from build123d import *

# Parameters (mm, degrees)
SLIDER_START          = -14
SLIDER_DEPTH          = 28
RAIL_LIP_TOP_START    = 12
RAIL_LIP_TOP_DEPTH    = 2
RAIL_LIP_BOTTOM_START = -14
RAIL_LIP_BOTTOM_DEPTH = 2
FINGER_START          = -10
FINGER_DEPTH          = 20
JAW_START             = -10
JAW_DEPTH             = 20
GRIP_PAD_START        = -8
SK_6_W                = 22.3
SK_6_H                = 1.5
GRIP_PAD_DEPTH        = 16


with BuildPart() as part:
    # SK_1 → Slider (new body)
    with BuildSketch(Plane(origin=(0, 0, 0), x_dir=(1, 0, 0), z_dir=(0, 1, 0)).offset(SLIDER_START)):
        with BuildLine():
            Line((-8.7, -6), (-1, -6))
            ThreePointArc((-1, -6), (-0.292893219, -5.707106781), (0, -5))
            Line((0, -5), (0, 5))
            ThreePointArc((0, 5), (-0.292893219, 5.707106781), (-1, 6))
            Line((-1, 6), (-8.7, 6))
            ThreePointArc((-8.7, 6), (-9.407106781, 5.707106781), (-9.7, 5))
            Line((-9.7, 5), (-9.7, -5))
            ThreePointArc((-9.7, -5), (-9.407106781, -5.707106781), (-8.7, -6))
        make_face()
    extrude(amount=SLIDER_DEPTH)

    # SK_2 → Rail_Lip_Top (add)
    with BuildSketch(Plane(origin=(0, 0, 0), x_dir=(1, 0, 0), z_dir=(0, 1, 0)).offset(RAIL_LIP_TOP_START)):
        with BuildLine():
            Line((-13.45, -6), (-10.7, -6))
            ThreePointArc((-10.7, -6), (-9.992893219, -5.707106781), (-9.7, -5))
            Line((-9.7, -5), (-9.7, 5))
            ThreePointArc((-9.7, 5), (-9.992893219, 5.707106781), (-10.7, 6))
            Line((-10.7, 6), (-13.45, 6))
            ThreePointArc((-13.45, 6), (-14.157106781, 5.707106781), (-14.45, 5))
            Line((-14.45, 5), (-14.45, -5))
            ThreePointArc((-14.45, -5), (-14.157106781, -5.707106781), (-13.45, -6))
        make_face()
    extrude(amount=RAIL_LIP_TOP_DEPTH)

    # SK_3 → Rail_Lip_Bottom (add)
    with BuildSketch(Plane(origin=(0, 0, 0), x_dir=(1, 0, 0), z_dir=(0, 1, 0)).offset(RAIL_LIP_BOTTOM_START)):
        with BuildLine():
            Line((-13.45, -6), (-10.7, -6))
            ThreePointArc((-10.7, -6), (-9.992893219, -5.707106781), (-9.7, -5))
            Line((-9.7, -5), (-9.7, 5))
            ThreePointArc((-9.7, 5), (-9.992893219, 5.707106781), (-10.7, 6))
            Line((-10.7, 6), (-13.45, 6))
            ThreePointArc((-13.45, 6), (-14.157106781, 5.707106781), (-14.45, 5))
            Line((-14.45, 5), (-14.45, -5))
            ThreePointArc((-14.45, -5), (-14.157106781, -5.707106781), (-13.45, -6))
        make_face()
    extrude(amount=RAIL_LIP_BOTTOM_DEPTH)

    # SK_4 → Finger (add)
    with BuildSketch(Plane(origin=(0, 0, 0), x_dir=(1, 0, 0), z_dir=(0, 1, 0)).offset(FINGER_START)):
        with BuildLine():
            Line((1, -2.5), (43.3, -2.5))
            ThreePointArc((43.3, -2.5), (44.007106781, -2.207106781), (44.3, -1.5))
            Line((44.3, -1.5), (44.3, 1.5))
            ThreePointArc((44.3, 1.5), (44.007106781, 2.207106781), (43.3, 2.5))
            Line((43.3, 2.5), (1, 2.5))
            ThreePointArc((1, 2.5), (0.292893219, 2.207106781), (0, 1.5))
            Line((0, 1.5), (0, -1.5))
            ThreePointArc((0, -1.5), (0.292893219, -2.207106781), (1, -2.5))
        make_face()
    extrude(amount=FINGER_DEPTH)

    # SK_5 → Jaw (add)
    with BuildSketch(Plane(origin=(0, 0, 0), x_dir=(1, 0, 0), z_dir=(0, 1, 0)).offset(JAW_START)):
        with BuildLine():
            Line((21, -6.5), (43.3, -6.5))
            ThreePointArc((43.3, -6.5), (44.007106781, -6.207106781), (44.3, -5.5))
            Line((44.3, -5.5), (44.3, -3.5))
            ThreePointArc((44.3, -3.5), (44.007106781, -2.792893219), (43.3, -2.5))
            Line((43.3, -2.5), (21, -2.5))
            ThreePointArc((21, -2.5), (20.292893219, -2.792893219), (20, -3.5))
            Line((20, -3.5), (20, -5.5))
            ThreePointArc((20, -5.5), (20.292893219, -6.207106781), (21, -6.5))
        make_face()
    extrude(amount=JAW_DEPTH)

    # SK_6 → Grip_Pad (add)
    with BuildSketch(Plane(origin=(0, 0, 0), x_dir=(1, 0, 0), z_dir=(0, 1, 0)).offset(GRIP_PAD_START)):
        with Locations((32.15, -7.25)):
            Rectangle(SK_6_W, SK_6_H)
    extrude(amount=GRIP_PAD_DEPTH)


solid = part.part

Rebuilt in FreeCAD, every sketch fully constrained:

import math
import FreeCAD as App
import Part
import Sketcher


def add_polygon(sketch, points):
    """Adds a closed chain of lines whose ends are joined by coincident constraints."""
    first, n = sketch.GeometryCount, len(points)
    for a, b in zip(points, points[1:] + points[:1]):
        sketch.addGeometry(Part.LineSegment(App.Vector(*a, 0), App.Vector(*b, 0)), False)
    for i in range(n):
        sketch.addConstraint(Sketcher.Constraint("Coincident", first + i, 2, first + (i + 1) % n, 1))

doc = App.newDocument("Part")
body = doc.addObject("PartDesign::Body", "Body")

sketch1 = body.newObject("Sketcher::SketchObject", "Sketch")
sketch1.AttachmentSupport = (doc.getObject("XZ_Plane"), [""])
sketch1.MapMode = "FlatFace"
sketch1.AttachmentOffset = App.Placement(App.Vector(0, 0, 14), App.Rotation())
sketch1.addGeometry(Part.LineSegment(App.Vector(-8.7, 6, 0), App.Vector(-1, 6, 0)), False)
sketch1.addGeometry(Part.ArcOfCircle(Part.Circle(App.Vector(-1, 5, 0), App.Vector(0, 0, 1), 1), math.radians(0), math.radians(90)), False)
sketch1.addGeometry(Part.LineSegment(App.Vector(0, 5, 0), App.Vector(0, -5, 0)), False)
sketch1.addGeometry(Part.ArcOfCircle(Part.Circle(App.Vector(-1, -5, 0), App.Vector(0, 0, 1), 1), math.radians(-90), math.radians(0)), False)
sketch1.addGeometry(Part.LineSegment(App.Vector(-1, -6, 0), App.Vector(-8.7, -6, 0)), False)
sketch1.addGeometry(Part.ArcOfCircle(Part.Circle(App.Vector(-8.7, -5, 0), App.Vector(0, 0, 1), 1), math.radians(-180), math.radians(-90)), False)
sketch1.addGeometry(Part.LineSegment(App.Vector(-9.7, -5, 0), App.Vector(-9.7, 5, 0)), False)
sketch1.addGeometry(Part.ArcOfCircle(Part.Circle(App.Vector(-8.7, 5, 0), App.Vector(0, 0, 1), 1), math.radians(90), math.radians(180)), False)
sketch1.addConstraint(Sketcher.Constraint("Tangent", 0, 2, 1, 2))
sketch1.addConstraint(Sketcher.Constraint("Tangent", 1, 1, 2, 1))
sketch1.addConstraint(Sketcher.Constraint("Tangent", 2, 2, 3, 2))
sketch1.addConstraint(Sketcher.Constraint("Tangent", 3, 1, 4, 1))
sketch1.addConstraint(Sketcher.Constraint("Tangent", 4, 2, 5, 2))
sketch1.addConstraint(Sketcher.Constraint("Tangent", 5, 1, 6, 1))
sketch1.addConstraint(Sketcher.Constraint("Tangent", 6, 2, 7, 2))
sketch1.addConstraint(Sketcher.Constraint("Tangent", 7, 1, 0, 1))
sketch1.addConstraint(Sketcher.Constraint("Horizontal", 0))
sketch1.addConstraint(Sketcher.Constraint("Vertical", 2))
sketch1.addConstraint(Sketcher.Constraint("Horizontal", 4))
sketch1.addConstraint(Sketcher.Constraint("Vertical", 6))
sketch1.addConstraint(Sketcher.Constraint("Equal", 1, 3))
sketch1.addConstraint(Sketcher.Constraint("Equal", 3, 5))
sketch1.addConstraint(Sketcher.Constraint("Equal", 5, 7))
sketch1.addConstraint(Sketcher.Constraint("Symmetric", 1, 1, 2, 2, -1, 1))
sketch1.addConstraint(Sketcher.Constraint("Radius", 1, 1.0))
sketch1.addConstraint(Sketcher.Constraint("DistanceY", 2, 2, 2, 1, 10.0))
sketch1.addConstraint(Sketcher.Constraint("DistanceX", 0, 1, 0, 2, 7.7))
pad1 = body.newObject("PartDesign::Pad", "Pad")
pad1.Profile = sketch1
pad1.Length = 28
pad1.Reversed = True

sketch2 = body.newObject("Sketcher::SketchObject", "Sketch001")
sketch2.AttachmentSupport = (doc.getObject("XZ_Plane"), [""])
sketch2.MapMode = "FlatFace"
sketch2.AttachmentOffset = App.Placement(App.Vector(0, 0, -12), App.Rotation())
sketch2.addGeometry(Part.LineSegment(App.Vector(-13.4, 6, 0), App.Vector(-10.7, 6, 0)), False)
sketch2.addGeometry(Part.ArcOfCircle(Part.Circle(App.Vector(-10.7, 5, 0), App.Vector(0, 0, 1), 1), math.radians(0), math.radians(90)), False)
sketch2.addGeometry(Part.LineSegment(App.Vector(-9.7, 5, 0), App.Vector(-9.7, -5, 0)), False)
sketch2.addGeometry(Part.ArcOfCircle(Part.Circle(App.Vector(-10.7, -5, 0), App.Vector(0, 0, 1), 1), math.radians(-90), math.radians(0)), False)
sketch2.addGeometry(Part.LineSegment(App.Vector(-10.7, -6, 0), App.Vector(-13.4, -6, 0)), False)
sketch2.addGeometry(Part.ArcOfCircle(Part.Circle(App.Vector(-13.4, -5, 0), App.Vector(0, 0, 1), 1), math.radians(-180), math.radians(-90)), False)
sketch2.addGeometry(Part.LineSegment(App.Vector(-14.4, -5, 0), App.Vector(-14.4, 5, 0)), False)
sketch2.addGeometry(Part.ArcOfCircle(Part.Circle(App.Vector(-13.4, 5, 0), App.Vector(0, 0, 1), 1), math.radians(90), math.radians(180)), False)
sketch2.addConstraint(Sketcher.Constraint("Tangent", 0, 2, 1, 2))
sketch2.addConstraint(Sketcher.Constraint("Tangent", 1, 1, 2, 1))
sketch2.addConstraint(Sketcher.Constraint("Tangent", 2, 2, 3, 2))
sketch2.addConstraint(Sketcher.Constraint("Tangent", 3, 1, 4, 1))
sketch2.addConstraint(Sketcher.Constraint("Tangent", 4, 2, 5, 2))
sketch2.addConstraint(Sketcher.Constraint("Tangent", 5, 1, 6, 1))
sketch2.addConstraint(Sketcher.Constraint("Tangent", 6, 2, 7, 2))
sketch2.addConstraint(Sketcher.Constraint("Tangent", 7, 1, 0, 1))
sketch2.addConstraint(Sketcher.Constraint("Horizontal", 0))
sketch2.addConstraint(Sketcher.Constraint("Vertical", 2))
sketch2.addConstraint(Sketcher.Constraint("Horizontal", 4))
sketch2.addConstraint(Sketcher.Constraint("Vertical", 6))
sketch2.addConstraint(Sketcher.Constraint("Equal", 1, 3))
sketch2.addConstraint(Sketcher.Constraint("Equal", 3, 5))
sketch2.addConstraint(Sketcher.Constraint("Equal", 5, 7))
sketch2.addConstraint(Sketcher.Constraint("Radius", 1, 1.0))
sketch2.addConstraint(Sketcher.Constraint("DistanceY", 2, 2, 2, 1, 10.0))
sketch2.addConstraint(Sketcher.Constraint("DistanceY", -1, 1, 1, 3, 5.0))
sketch2.addConstraint(Sketcher.Constraint("DistanceX", 0, 1, 0, 2, 2.75))
sketch2.addConstraint(Sketcher.Constraint("DistanceX", 1, 3, -1, 1, 10.7))
pad2 = body.newObject("PartDesign::Pad", "Pad001")
pad2.Profile = sketch2
pad2.Length = 2
pad2.Reversed = True

sketch3 = body.newObject("Sketcher::SketchObject", "Sketch002")
sketch3.AttachmentSupport = (doc.getObject("XZ_Plane"), [""])
sketch3.MapMode = "FlatFace"
sketch3.AttachmentOffset = App.Placement(App.Vector(0, 0, 14), App.Rotation())
sketch3.addGeometry(Part.LineSegment(App.Vector(-13.4, 6, 0), App.Vector(-10.7, 6, 0)), False)
sketch3.addGeometry(Part.ArcOfCircle(Part.Circle(App.Vector(-10.7, 5, 0), App.Vector(0, 0, 1), 1), math.radians(0), math.radians(90)), False)
sketch3.addGeometry(Part.LineSegment(App.Vector(-9.7, 5, 0), App.Vector(-9.7, -5, 0)), False)
sketch3.addGeometry(Part.ArcOfCircle(Part.Circle(App.Vector(-10.7, -5, 0), App.Vector(0, 0, 1), 1), math.radians(-90), math.radians(0)), False)
sketch3.addGeometry(Part.LineSegment(App.Vector(-10.7, -6, 0), App.Vector(-13.4, -6, 0)), False)
sketch3.addGeometry(Part.ArcOfCircle(Part.Circle(App.Vector(-13.4, -5, 0), App.Vector(0, 0, 1), 1), math.radians(-180), math.radians(-90)), False)
sketch3.addGeometry(Part.LineSegment(App.Vector(-14.4, -5, 0), App.Vector(-14.4, 5, 0)), False)
sketch3.addGeometry(Part.ArcOfCircle(Part.Circle(App.Vector(-13.4, 5, 0), App.Vector(0, 0, 1), 1), math.radians(90), math.radians(180)), False)
sketch3.addConstraint(Sketcher.Constraint("Tangent", 0, 2, 1, 2))
sketch3.addConstraint(Sketcher.Constraint("Tangent", 1, 1, 2, 1))
sketch3.addConstraint(Sketcher.Constraint("Tangent", 2, 2, 3, 2))
sketch3.addConstraint(Sketcher.Constraint("Tangent", 3, 1, 4, 1))
sketch3.addConstraint(Sketcher.Constraint("Tangent", 4, 2, 5, 2))
sketch3.addConstraint(Sketcher.Constraint("Tangent", 5, 1, 6, 1))
sketch3.addConstraint(Sketcher.Constraint("Tangent", 6, 2, 7, 2))
sketch3.addConstraint(Sketcher.Constraint("Tangent", 7, 1, 0, 1))
sketch3.addConstraint(Sketcher.Constraint("Horizontal", 0))
sketch3.addConstraint(Sketcher.Constraint("Vertical", 2))
sketch3.addConstraint(Sketcher.Constraint("Horizontal", 4))
sketch3.addConstraint(Sketcher.Constraint("Vertical", 6))
sketch3.addConstraint(Sketcher.Constraint("Equal", 1, 3))
sketch3.addConstraint(Sketcher.Constraint("Equal", 3, 5))
sketch3.addConstraint(Sketcher.Constraint("Equal", 5, 7))
sketch3.addConstraint(Sketcher.Constraint("Radius", 1, 1.0))
sketch3.addConstraint(Sketcher.Constraint("DistanceY", 2, 2, 2, 1, 10.0))
sketch3.addConstraint(Sketcher.Constraint("DistanceY", -1, 1, 1, 3, 5.0))
sketch3.addConstraint(Sketcher.Constraint("DistanceX", 0, 1, 0, 2, 2.75))
sketch3.addConstraint(Sketcher.Constraint("DistanceX", 1, 3, -1, 1, 10.7))
pad3 = body.newObject("PartDesign::Pad", "Pad002")
pad3.Profile = sketch3
pad3.Length = 2
pad3.Reversed = True

sketch4 = body.newObject("Sketcher::SketchObject", "Sketch003")
sketch4.AttachmentSupport = (doc.getObject("XZ_Plane"), [""])
sketch4.MapMode = "FlatFace"
sketch4.AttachmentOffset = App.Placement(App.Vector(0, 0, 10), App.Rotation())
sketch4.addGeometry(Part.LineSegment(App.Vector(1, 2.5, 0), App.Vector(43.3, 2.5, 0)), False)
sketch4.addGeometry(Part.ArcOfCircle(Part.Circle(App.Vector(43.3, 1.5, 0), App.Vector(0, 0, 1), 1), math.radians(0), math.radians(90)), False)
sketch4.addGeometry(Part.LineSegment(App.Vector(44.3, 1.5, 0), App.Vector(44.3, -1.5, 0)), False)
sketch4.addGeometry(Part.ArcOfCircle(Part.Circle(App.Vector(43.3, -1.5, 0), App.Vector(0, 0, 1), 1), math.radians(-90), math.radians(0)), False)
sketch4.addGeometry(Part.LineSegment(App.Vector(43.3, -2.5, 0), App.Vector(1, -2.5, 0)), False)
sketch4.addGeometry(Part.ArcOfCircle(Part.Circle(App.Vector(1, -1.5, 0), App.Vector(0, 0, 1), 1), math.radians(-180), math.radians(-90)), False)
sketch4.addGeometry(Part.LineSegment(App.Vector(0, -1.5, 0), App.Vector(0, 1.5, 0)), False)
sketch4.addGeometry(Part.ArcOfCircle(Part.Circle(App.Vector(1, 1.5, 0), App.Vector(0, 0, 1), 1), math.radians(90), math.radians(180)), False)
sketch4.addConstraint(Sketcher.Constraint("Tangent", 0, 2, 1, 2))
sketch4.addConstraint(Sketcher.Constraint("Tangent", 1, 1, 2, 1))
sketch4.addConstraint(Sketcher.Constraint("Tangent", 2, 2, 3, 2))
sketch4.addConstraint(Sketcher.Constraint("Tangent", 3, 1, 4, 1))
sketch4.addConstraint(Sketcher.Constraint("Tangent", 4, 2, 5, 2))
sketch4.addConstraint(Sketcher.Constraint("Tangent", 5, 1, 6, 1))
sketch4.addConstraint(Sketcher.Constraint("Tangent", 6, 2, 7, 2))
sketch4.addConstraint(Sketcher.Constraint("Tangent", 7, 1, 0, 1))
sketch4.addConstraint(Sketcher.Constraint("Horizontal", 0))
sketch4.addConstraint(Sketcher.Constraint("Vertical", 2))
sketch4.addConstraint(Sketcher.Constraint("Horizontal", 4))
sketch4.addConstraint(Sketcher.Constraint("Vertical", 6))
sketch4.addConstraint(Sketcher.Constraint("Equal", 1, 3))
sketch4.addConstraint(Sketcher.Constraint("Equal", 3, 5))
sketch4.addConstraint(Sketcher.Constraint("Equal", 5, 7))
sketch4.addConstraint(Sketcher.Constraint("Symmetric", 5, 1, 6, 2, -1, 1))
sketch4.addConstraint(Sketcher.Constraint("Radius", 1, 1.0))
sketch4.addConstraint(Sketcher.Constraint("DistanceY", 2, 2, 2, 1, 3.0))
sketch4.addConstraint(Sketcher.Constraint("DistanceX", 0, 1, 0, 2, 42.3))
pad4 = body.newObject("PartDesign::Pad", "Pad003")
pad4.Profile = sketch4
pad4.Length = 20
pad4.Reversed = True

sketch5 = body.newObject("Sketcher::SketchObject", "Sketch004")
sketch5.AttachmentSupport = (doc.getObject("XZ_Plane"), [""])
sketch5.MapMode = "FlatFace"
sketch5.AttachmentOffset = App.Placement(App.Vector(0, 0, 10), App.Rotation())
sketch5.addGeometry(Part.LineSegment(App.Vector(21, 6.5, 0), App.Vector(43.3, 6.5, 0)), False)
sketch5.addGeometry(Part.ArcOfCircle(Part.Circle(App.Vector(43.3, 5.5, 0), App.Vector(0, 0, 1), 1), math.radians(0), math.radians(90)), False)
sketch5.addGeometry(Part.LineSegment(App.Vector(44.3, 5.5, 0), App.Vector(44.3, 3.5, 0)), False)
sketch5.addGeometry(Part.ArcOfCircle(Part.Circle(App.Vector(43.3, 3.5, 0), App.Vector(0, 0, 1), 1), math.radians(-90), math.radians(0)), False)
sketch5.addGeometry(Part.LineSegment(App.Vector(43.3, 2.5, 0), App.Vector(21, 2.5, 0)), False)
sketch5.addGeometry(Part.ArcOfCircle(Part.Circle(App.Vector(21, 3.5, 0), App.Vector(0, 0, 1), 1), math.radians(-180), math.radians(-90)), False)
sketch5.addGeometry(Part.LineSegment(App.Vector(20, 3.5, 0), App.Vector(20, 5.5, 0)), False)
sketch5.addGeometry(Part.ArcOfCircle(Part.Circle(App.Vector(21, 5.5, 0), App.Vector(0, 0, 1), 1), math.radians(90), math.radians(180)), False)
sketch5.addConstraint(Sketcher.Constraint("Tangent", 0, 2, 1, 2))
sketch5.addConstraint(Sketcher.Constraint("Tangent", 1, 1, 2, 1))
sketch5.addConstraint(Sketcher.Constraint("Tangent", 2, 2, 3, 2))
sketch5.addConstraint(Sketcher.Constraint("Tangent", 3, 1, 4, 1))
sketch5.addConstraint(Sketcher.Constraint("Tangent", 4, 2, 5, 2))
sketch5.addConstraint(Sketcher.Constraint("Tangent", 5, 1, 6, 1))
sketch5.addConstraint(Sketcher.Constraint("Tangent", 6, 2, 7, 2))
sketch5.addConstraint(Sketcher.Constraint("Tangent", 7, 1, 0, 1))
sketch5.addConstraint(Sketcher.Constraint("Horizontal", 0))
sketch5.addConstraint(Sketcher.Constraint("Vertical", 2))
sketch5.addConstraint(Sketcher.Constraint("Horizontal", 4))
sketch5.addConstraint(Sketcher.Constraint("Vertical", 6))
sketch5.addConstraint(Sketcher.Constraint("Equal", 1, 3))
sketch5.addConstraint(Sketcher.Constraint("Equal", 3, 5))
sketch5.addConstraint(Sketcher.Constraint("Equal", 5, 7))
sketch5.addConstraint(Sketcher.Constraint("Radius", 1, 1.0))
sketch5.addConstraint(Sketcher.Constraint("DistanceY", 2, 2, 2, 1, 2.0))
sketch5.addConstraint(Sketcher.Constraint("DistanceX", 0, 1, 0, 2, 22.3))
sketch5.addConstraint(Sketcher.Constraint("DistanceX", -1, 1, 5, 3, 21.0))
sketch5.addConstraint(Sketcher.Constraint("DistanceY", -1, 1, 1, 3, 5.5))
pad5 = body.newObject("PartDesign::Pad", "Pad004")
pad5.Profile = sketch5
pad5.Length = 20
pad5.Reversed = True

sketch6 = body.newObject("Sketcher::SketchObject", "Sketch005")
sketch6.AttachmentSupport = (doc.getObject("XZ_Plane"), [""])
sketch6.MapMode = "FlatFace"
sketch6.AttachmentOffset = App.Placement(App.Vector(0, 0, 8), App.Rotation())
add_polygon(sketch6, [(21, 6.5), (21, 8), (43.3, 8), (43.3, 6.5)])
sketch6.addConstraint(Sketcher.Constraint("Vertical", 0))
sketch6.addConstraint(Sketcher.Constraint("Horizontal", 1))
sketch6.addConstraint(Sketcher.Constraint("Vertical", 2))
sketch6.addConstraint(Sketcher.Constraint("Horizontal", 3))
sketch6.addConstraint(Sketcher.Constraint("DistanceX", 1, 1, 1, 2, 22.3))
sketch6.addConstraint(Sketcher.Constraint("DistanceY", 0, 1, 0, 2, 1.5))
sketch6.addConstraint(Sketcher.Constraint("DistanceX", -1, 1, 0, 2, 21.0))
sketch6.addConstraint(Sketcher.Constraint("DistanceY", -1, 1, 0, 2, 8.0))
pad6 = body.newObject("PartDesign::Pad", "Pad005")
pad6.Profile = sketch6
pad6.Length = 16
pad6.Reversed = True

doc.recompute()
